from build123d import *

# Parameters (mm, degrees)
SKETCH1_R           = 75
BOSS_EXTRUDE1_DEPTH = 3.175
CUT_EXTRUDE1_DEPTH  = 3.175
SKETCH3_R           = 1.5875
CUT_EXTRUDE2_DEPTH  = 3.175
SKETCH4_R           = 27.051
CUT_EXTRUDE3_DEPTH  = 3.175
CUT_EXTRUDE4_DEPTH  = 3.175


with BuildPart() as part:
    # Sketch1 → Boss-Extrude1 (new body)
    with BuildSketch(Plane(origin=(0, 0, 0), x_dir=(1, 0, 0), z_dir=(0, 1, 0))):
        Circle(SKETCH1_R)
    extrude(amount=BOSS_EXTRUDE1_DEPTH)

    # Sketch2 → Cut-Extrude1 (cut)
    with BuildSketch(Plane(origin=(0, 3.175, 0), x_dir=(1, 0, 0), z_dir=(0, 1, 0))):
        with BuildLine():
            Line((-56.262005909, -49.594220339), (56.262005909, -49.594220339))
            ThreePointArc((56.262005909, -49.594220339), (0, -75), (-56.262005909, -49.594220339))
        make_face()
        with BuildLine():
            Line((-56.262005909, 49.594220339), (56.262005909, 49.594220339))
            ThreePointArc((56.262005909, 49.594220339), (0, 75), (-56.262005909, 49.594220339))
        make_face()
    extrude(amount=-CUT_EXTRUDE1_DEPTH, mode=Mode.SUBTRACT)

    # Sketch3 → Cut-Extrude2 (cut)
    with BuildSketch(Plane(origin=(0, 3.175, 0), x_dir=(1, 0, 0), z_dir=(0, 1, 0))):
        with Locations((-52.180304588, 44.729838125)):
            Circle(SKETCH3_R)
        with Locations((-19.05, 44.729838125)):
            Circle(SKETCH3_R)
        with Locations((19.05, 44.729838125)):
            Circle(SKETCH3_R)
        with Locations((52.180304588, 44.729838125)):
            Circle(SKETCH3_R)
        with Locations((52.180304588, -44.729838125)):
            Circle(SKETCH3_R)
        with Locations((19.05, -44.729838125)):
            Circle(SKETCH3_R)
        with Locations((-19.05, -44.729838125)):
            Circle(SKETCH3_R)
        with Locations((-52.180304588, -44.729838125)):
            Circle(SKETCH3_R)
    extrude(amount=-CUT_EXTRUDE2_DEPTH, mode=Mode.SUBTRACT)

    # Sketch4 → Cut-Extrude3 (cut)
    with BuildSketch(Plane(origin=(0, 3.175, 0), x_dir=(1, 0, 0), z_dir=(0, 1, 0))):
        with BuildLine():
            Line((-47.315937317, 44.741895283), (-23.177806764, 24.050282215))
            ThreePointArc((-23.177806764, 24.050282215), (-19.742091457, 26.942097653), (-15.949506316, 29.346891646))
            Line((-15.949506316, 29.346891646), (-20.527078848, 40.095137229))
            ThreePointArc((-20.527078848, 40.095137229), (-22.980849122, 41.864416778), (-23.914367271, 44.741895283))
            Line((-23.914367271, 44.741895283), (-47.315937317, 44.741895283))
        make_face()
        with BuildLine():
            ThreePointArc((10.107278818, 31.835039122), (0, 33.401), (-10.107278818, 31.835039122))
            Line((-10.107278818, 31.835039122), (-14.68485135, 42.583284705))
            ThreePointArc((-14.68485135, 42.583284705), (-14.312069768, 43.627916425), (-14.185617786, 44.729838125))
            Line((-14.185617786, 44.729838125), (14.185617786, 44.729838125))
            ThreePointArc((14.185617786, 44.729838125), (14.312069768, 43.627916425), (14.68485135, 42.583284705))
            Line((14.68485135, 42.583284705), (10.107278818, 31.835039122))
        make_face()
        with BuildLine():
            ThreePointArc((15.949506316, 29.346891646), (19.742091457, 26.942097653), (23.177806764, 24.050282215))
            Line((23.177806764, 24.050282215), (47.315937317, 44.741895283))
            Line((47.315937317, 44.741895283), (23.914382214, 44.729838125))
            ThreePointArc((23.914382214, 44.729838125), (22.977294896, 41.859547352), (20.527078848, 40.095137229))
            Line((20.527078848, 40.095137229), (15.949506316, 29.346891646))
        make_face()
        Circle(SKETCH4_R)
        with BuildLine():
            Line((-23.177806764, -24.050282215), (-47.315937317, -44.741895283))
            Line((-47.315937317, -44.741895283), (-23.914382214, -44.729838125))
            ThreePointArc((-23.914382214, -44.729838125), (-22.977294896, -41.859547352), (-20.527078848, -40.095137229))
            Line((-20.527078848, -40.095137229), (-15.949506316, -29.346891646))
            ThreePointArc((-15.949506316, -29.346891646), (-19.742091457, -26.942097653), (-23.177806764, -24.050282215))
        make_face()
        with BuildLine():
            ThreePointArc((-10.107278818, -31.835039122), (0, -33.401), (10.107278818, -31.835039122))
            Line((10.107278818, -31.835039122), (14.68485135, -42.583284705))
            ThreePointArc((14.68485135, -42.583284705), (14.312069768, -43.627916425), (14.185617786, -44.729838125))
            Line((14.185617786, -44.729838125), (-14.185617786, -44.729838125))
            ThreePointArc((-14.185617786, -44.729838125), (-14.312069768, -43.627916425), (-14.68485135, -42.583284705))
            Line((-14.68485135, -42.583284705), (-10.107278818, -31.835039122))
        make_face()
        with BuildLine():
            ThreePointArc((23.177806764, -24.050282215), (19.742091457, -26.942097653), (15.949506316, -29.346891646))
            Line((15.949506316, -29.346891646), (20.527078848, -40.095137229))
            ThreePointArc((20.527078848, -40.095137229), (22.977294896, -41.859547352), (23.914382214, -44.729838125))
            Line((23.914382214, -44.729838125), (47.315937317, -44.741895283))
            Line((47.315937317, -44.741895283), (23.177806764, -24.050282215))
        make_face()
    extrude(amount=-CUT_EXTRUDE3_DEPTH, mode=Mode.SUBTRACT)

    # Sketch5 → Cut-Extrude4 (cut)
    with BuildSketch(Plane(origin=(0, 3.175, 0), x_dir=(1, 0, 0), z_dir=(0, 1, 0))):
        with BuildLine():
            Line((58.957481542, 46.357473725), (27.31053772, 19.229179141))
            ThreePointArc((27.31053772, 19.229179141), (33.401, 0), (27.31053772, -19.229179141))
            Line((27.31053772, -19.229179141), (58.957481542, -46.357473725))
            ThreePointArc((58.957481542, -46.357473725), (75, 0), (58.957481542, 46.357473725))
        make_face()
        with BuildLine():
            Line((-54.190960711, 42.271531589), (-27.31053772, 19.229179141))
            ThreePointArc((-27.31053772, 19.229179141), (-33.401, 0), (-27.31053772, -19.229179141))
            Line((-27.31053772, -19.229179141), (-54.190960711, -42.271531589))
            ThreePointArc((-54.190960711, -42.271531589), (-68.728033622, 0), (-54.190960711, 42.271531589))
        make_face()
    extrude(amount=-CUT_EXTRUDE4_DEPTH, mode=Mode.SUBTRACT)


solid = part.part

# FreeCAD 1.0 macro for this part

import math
import FreeCAD as App
import Part
import Sketcher
Q = App.Units.Quantity

doc = App.newDocument("Part")
body = doc.addObject("PartDesign::Body", "Body")

sketch1 = body.newObject("Sketcher::SketchObject", "Sketch")
sketch1.AttachmentSupport = (doc.getObject("XZ_Plane"), [""])
sketch1.MapMode = "FlatFace"
sketch1.addGeometry(Part.Circle(App.Vector(0, 0, 0), App.Vector(0, 0, 1), 75), False)
sketch1.addConstraint([
    Sketcher.Constraint("Coincident", 0, 3, -1, 1),
    Sketcher.Constraint("Diameter", 0, Q("150 mm")),
])
pad1 = body.newObject("PartDesign::Pad", "Pad")
pad1.Profile = sketch1
pad1.Length = Q("0.125 in")
pad1.Reversed = True

sketch2 = body.newObject("Sketcher::SketchObject", "Sketch001")
sketch2.AttachmentSupport = (doc.getObject("XZ_Plane"), [""])
sketch2.MapMode = "FlatFace"
sketch2.AttachmentOffset = App.Placement(App.Vector(0, 0, -0.125 * 25.4), App.Rotation())
sketch2.addGeometry([
    Part.LineSegment(App.Vector(56, 50, 0), App.Vector(-56, 50, 0)),
    Part.ArcOfCircle(Part.Circle(App.Vector(0, 0, 0), App.Vector(0, 0, 1), 75), math.radians(41), math.radians(139)),
    Part.LineSegment(App.Vector(-56, -50, 0), App.Vector(56, -50, 0)),
    Part.ArcOfCircle(Part.Circle(App.Vector(0, 0, 0), App.Vector(0, 0, 1), 75), math.radians(-139), math.radians(-41)),
], False)
sketch2.addConstraint([
    Sketcher.Constraint("Coincident", 0, 1, 1, 1),
    Sketcher.Constraint("Coincident", 1, 2, 0, 2),
    Sketcher.Constraint("Coincident", 2, 1, 3, 1),
    Sketcher.Constraint("Coincident", 3, 2, 2, 2),
    Sketcher.Constraint("Horizontal", 0),
    Sketcher.Constraint("Horizontal", 2),
    Sketcher.Constraint("Coincident", 1, 3, -1, 1),
    Sketcher.Constraint("Coincident", 3, 3, -1, 1),
    Sketcher.Constraint("Equal", 1, 3),
    Sketcher.Constraint("Vertical", 1, 2, 2, 1),
    Sketcher.Constraint("Radius", 1, Q("75 mm")),
    Sketcher.Constraint("DistanceX", 0, 2, 0, 1, Q("112.524012 mm")),
])
pocket1 = body.newObject("PartDesign::Pocket", "Pocket")
pocket1.Profile = sketch2
pocket1.Length = Q("0.125 in")
pocket1.Reversed = True

sketch3 = body.newObject("Sketcher::SketchObject", "Sketch002")
sketch3.AttachmentSupport = (doc.getObject("XZ_Plane"), [""])
sketch3.MapMode = "FlatFace"
sketch3.AttachmentOffset = App.Placement(App.Vector(0, 0, -0.125 * 25.4), App.Rotation())
sketch3.addGeometry([
    Part.Circle(App.Vector(-52.2, -44.7, 0), App.Vector(0, 0, 1), 1.6),
    Part.Circle(App.Vector(-19.1, -44.7, 0), App.Vector(0, 0, 1), 1.6),
    Part.Circle(App.Vector(19.1, -44.7, 0), App.Vector(0, 0, 1), 1.6),
    Part.Circle(App.Vector(52.2, -44.7, 0), App.Vector(0, 0, 1), 1.6),
    Part.Circle(App.Vector(52.2, 44.7, 0), App.Vector(0, 0, 1), 1.6),
    Part.Circle(App.Vector(19.1, 44.7, 0), App.Vector(0, 0, 1), 1.6),
    Part.Circle(App.Vector(-19.1, 44.7, 0), App.Vector(0, 0, 1), 1.6),
    Part.Circle(App.Vector(-52.2, 44.7, 0), App.Vector(0, 0, 1), 1.6),
], False)
sketch3.addConstraint([
    Sketcher.Constraint("Equal", 0, 1),
    Sketcher.Constraint("Equal", 1, 2),
    Sketcher.Constraint("Equal", 2, 3),
    Sketcher.Constraint("Equal", 3, 4),
    Sketcher.Constraint("Equal", 4, 5),
    Sketcher.Constraint("Equal", 5, 6),
    Sketcher.Constraint("Equal", 6, 7),
    Sketcher.Constraint("Symmetric", 0, 3, 4, 3, -1, 1),
    Sketcher.Constraint("Symmetric", 1, 3, 5, 3, -1, 1),
    Sketcher.Constraint("Symmetric", 2, 3, 6, 3, -1, 1),
    Sketcher.Constraint("Symmetric", 3, 3, 7, 3, -1, 1),
    Sketcher.Constraint("Symmetric", 1, 3, 2, 3, -2),
    Sketcher.Constraint("Symmetric", 0, 3, 3, 3, -2),
    Sketcher.Constraint("Horizontal", 0, 3, 1, 3),
    Sketcher.Constraint("Diameter", 0, Q("0.125 in")),
    Sketcher.Constraint("DistanceX", 1, 3, 2, 3, Q("1.5 in")),
    Sketcher.Constraint("DistanceY", 0, 3, -1, 1, Q("44.729838 mm")),
    Sketcher.Constraint("DistanceX", 0, 3, 3, 3, Q("104.360609 mm")),
])
pocket2 = body.newObject("PartDesign::Pocket", "Pocket001")
pocket2.Profile = sketch3
pocket2.Length = Q("0.125 in")
pocket2.Reversed = True

sketch4 = body.newObject("Sketcher::SketchObject", "Sketch003")
sketch4.AttachmentSupport = (doc.getObject("XZ_Plane"), [""])
sketch4.MapMode = "FlatFace"
sketch4.AttachmentOffset = App.Placement(App.Vector(0, 0, -0.125 * 25.4), App.Rotation())
sketch4.addGeometry([
    Part.LineSegment(App.Vector(-47.3, -44.7, 0), App.Vector(-23.2, -24.1, 0)),
    Part.ArcOfCircle(Part.Circle(App.Vector(0, 0, 0), App.Vector(0, 0, 1), 33.4), math.radians(-133.94), math.radians(-118.52)),
    Part.LineSegment(App.Vector(-15.9, -29.3, 0), App.Vector(-20.5, -40.1, 0)),
    Part.ArcOfCircle(Part.Circle(App.Vector(-19, -44.7, 0), App.Vector(0, 0, 1), 4.9), math.radians(108), math.radians(180)),
    Part.LineSegment(App.Vector(-23.9, -44.7, 0), App.Vector(-47.3, -44.7, 0)),
    Part.ArcOfCircle(Part.Circle(App.Vector(0, 0, 0), App.Vector(0, 0, 1), 33.4), math.radians(-108), math.radians(-72)),
    Part.LineSegment(App.Vector(10.1, -31.8, 0), App.Vector(14.7, -42.6, 0)),
    Part.ArcOfCircle(Part.Circle(App.Vector(19.1, -44.7, 0), App.Vector(0, 0, 1), 4.9), math.radians(154), math.radians(180)),
    Part.LineSegment(App.Vector(14.2, -44.7, 0), App.Vector(-14.2, -44.7, 0)),
    Part.ArcOfCircle(Part.Circle(App.Vector(-19.1, -44.7, 0), App.Vector(0, 0, 1), 4.9), math.radians(0), math.radians(26)),
    Part.LineSegment(App.Vector(-14.7, -42.6, 0), App.Vector(-10.1, -31.8, 0)),
    Part.ArcOfCircle(Part.Circle(App.Vector(0, 0, 0), App.Vector(0, 0, 1), 33.4), math.radians(-61.48), math.radians(-46.06)),
    Part.LineSegment(App.Vector(23.2, -24.1, 0), App.Vector(47.3, -44.7, 0)),
    Part.LineSegment(App.Vector(47.3, -44.7, 0), App.Vector(23.9, -44.7, 0)),
    Part.ArcOfCircle(Part.Circle(App.Vector(19.1, -44.7, 0), App.Vector(0, 0, 1), 4.9), math.radians(0), math.radians(72)),
    Part.LineSegment(App.Vector(20.5, -40.1, 0), App.Vector(15.9, -29.3, 0)),
    Part.Circle(App.Vector(0, 0, 0), App.Vector(0, 0, 1), 27.1),
    Part.LineSegment(App.Vector(-23.2, 24.1, 0), App.Vector(-47.3, 44.7, 0)),
    Part.LineSegment(App.Vector(-47.3, 44.7, 0), App.Vector(-23.9, 44.7, 0)),
    Part.ArcOfCircle(Part.Circle(App.Vector(-19.1, 44.7, 0), App.Vector(0, 0, 1), 4.9), math.radians(180), math.radians(252)),
    Part.LineSegment(App.Vector(-20.5, 40.1, 0), App.Vector(-15.9, 29.3, 0)),
    Part.ArcOfCircle(Part.Circle(App.Vector(0, 0, 0), App.Vector(0, 0, 1), 33.4), math.radians(118.52), math.radians(133.94)),
    Part.ArcOfCircle(Part.Circle(App.Vector(0, 0, 0), App.Vector(0, 0, 1), 33.4), math.radians(72), math.radians(108)),
    Part.LineSegment(App.Vector(-10.1, 31.8, 0), App.Vector(-14.7, 42.6, 0)),
    Part.ArcOfCircle(Part.Circle(App.Vector(-19.1, 44.7, 0), App.Vector(0, 0, 1), 4.9), math.radians(-26), math.radians(0)),
    Part.LineSegment(App.Vector(-14.2, 44.7, 0), App.Vector(14.2, 44.7, 0)),
    Part.ArcOfCircle(Part.Circle(App.Vector(19.1, 44.7, 0), App.Vector(0, 0, 1), 4.9), math.radians(-180), math.radians(-154)),
    Part.LineSegment(App.Vector(14.7, 42.6, 0), App.Vector(10.1, 31.8, 0)),
    Part.ArcOfCircle(Part.Circle(App.Vector(0, 0, 0), App.Vector(0, 0, 1), 33.4), math.radians(46.06), math.radians(61.48)),
    Part.LineSegment(App.Vector(15.9, 29.3, 0), App.Vector(20.5, 40.1, 0)),
    Part.ArcOfCircle(Part.Circle(App.Vector(19.1, 44.7, 0), App.Vector(0, 0, 1), 4.9), math.radians(-72), math.radians(0)),
    Part.LineSegment(App.Vector(23.9, 44.7, 0), App.Vector(47.3, 44.7, 0)),
    Part.LineSegment(App.Vector(47.3, 44.7, 0), App.Vector(23.2, 24.1, 0)),
], False)
sketch4.addConstraint([
    Sketcher.Constraint("Coincident", 0, 2, 1, 1),
    Sketcher.Constraint("Coincident", 1, 2, 2, 1),
    Sketcher.Constraint("Coincident", 2, 2, 3, 1),
    Sketcher.Constraint("Coincident", 3, 2, 4, 1),
    Sketcher.Constraint("Coincident", 4, 2, 0, 1),
    Sketcher.Constraint("Coincident", 5, 2, 6, 1),
    Sketcher.Constraint("Coincident", 6, 2, 7, 1),
    Sketcher.Constraint("Coincident", 7, 2, 8, 1),
    Sketcher.Constraint("Coincident", 8, 2, 9, 1),
    Sketcher.Constraint("Coincident", 9, 2, 10, 1),
    Sketcher.Constraint("Coincident", 10, 2, 5, 1),
    Sketcher.Constraint("Coincident", 11, 2, 12, 1),
    Sketcher.Constraint("Coincident", 12, 2, 13, 1),
    Sketcher.Constraint("Coincident", 13, 2, 14, 1),
    Sketcher.Constraint("Coincident", 14, 2, 15, 1),
    Sketcher.Constraint("Coincident", 15, 2, 11, 1),
    Sketcher.Constraint("Coincident", 17, 2, 18, 1),
    Sketcher.Constraint("Coincident", 18, 2, 19, 1),
    Sketcher.Constraint("Coincident", 19, 2, 20, 1),
    Sketcher.Constraint("Coincident", 20, 2, 21, 1),
    Sketcher.Constraint("Coincident", 21, 2, 17, 1),
    Sketcher.Constraint("Coincident", 22, 2, 23, 1),
    Sketcher.Constraint("Coincident", 23, 2, 24, 1),
    Sketcher.Constraint("Coincident", 24, 2, 25, 1),
    Sketcher.Constraint("Coincident", 25, 2, 26, 1),
    Sketcher.Constraint("Coincident", 26, 2, 27, 1),
    Sketcher.Constraint("Coincident", 27, 2, 22, 1),
    Sketcher.Constraint("Coincident", 28, 2, 29, 1),
    Sketcher.Constraint("Coincident", 29, 2, 30, 1),
    Sketcher.Constraint("Coincident", 30, 2, 31, 1),
    Sketcher.Constraint("Coincident", 31, 2, 32, 1),
    Sketcher.Constraint("Coincident", 32, 2, 28, 1),
    Sketcher.Constraint("Horizontal", 4),
    Sketcher.Constraint("Horizontal", 8),
    Sketcher.Constraint("Horizontal", 25),
    Sketcher.Constraint("Coincident", 1, 3, -1, 1),
    Sketcher.Constraint("Coincident", 5, 3, -1, 1),
    Sketcher.Constraint("Coincident", 11, 3, -1, 1),
    Sketcher.Constraint("Coincident", 16, 3, -1, 1),
    Sketcher.Constraint("Coincident", 21, 3, -1, 1),
    Sketcher.Constraint("Coincident", 22, 3, -1, 1),
    Sketcher.Constraint("Coincident", 28, 3, -1, 1),
    Sketcher.Constraint("Coincident", 9, 3, 3, 3),
    Sketcher.Constraint("Coincident", 14, 3, 7, 3),
    Sketcher.Constraint("Coincident", 24, 3, 19, 3),
    Sketcher.Constraint("Coincident", 30, 3, 26, 3),
    Sketcher.Constraint("Equal", 1, 5),
    Sketcher.Constraint("Equal", 3, 7),
    Sketcher.Constraint("Equal", 7, 9),
    Sketcher.Constraint("Equal", 5, 11),
    Sketcher.Constraint("Equal", 9, 14),
    Sketcher.Constraint("Equal", 14, 19),
    Sketcher.Constraint("Equal", 11, 21),
    Sketcher.Constraint("Equal", 21, 22),
    Sketcher.Constraint("Equal", 19, 24),
    Sketcher.Constraint("Equal", 24, 26),
    Sketcher.Constraint("Equal", 22, 28),
    Sketcher.Constraint("Equal", 26, 30),
    Sketcher.Constraint("Symmetric", 7, 3, 19, 3, -1, 1),
    Sketcher.Constraint("Symmetric", 3, 3, 26, 3, -1, 1),
    Sketcher.Constraint("Symmetric", 12, 2, 17, 2, -1, 1),
    Sketcher.Constraint("Symmetric", 4, 2, 31, 2, -1, 1),
    Sketcher.Constraint("Symmetric", 3, 3, 7, 3, -2),
    Sketcher.Constraint("Symmetric", 4, 2, 12, 2, -2),
    Sketcher.Constraint("Parallel", 2, 10),
    Sketcher.Constraint("Parallel", 6, 15),
    Sketcher.Constraint("Parallel", 12, 17),
    Sketcher.Constraint("Parallel", 13, 18),
    Sketcher.Constraint("Parallel", 15, 20),
    Sketcher.Constraint("Parallel", 20, 23),
    Sketcher.Constraint("Parallel", 10, 27),
    Sketcher.Constraint("Parallel", 27, 29),
    Sketcher.Constraint("Parallel", 0, 32),
    Sketcher.Constraint("Horizontal", 14, 3, 7, 2),
    Sketcher.Constraint("Horizontal", 6, 2, 9, 2),
    Sketcher.Constraint("Horizontal", 5, 2, 10, 2),
    Sketcher.Constraint("Horizontal", 0, 2, 11, 2),
    Sketcher.Constraint("Horizontal", 8, 2, 13, 2),
    Sketcher.Constraint("Horizontal", 2, 2, 14, 2),
    Sketcher.Constraint("Horizontal", 18, 2, 24, 2),
    Sketcher.Constraint("Horizontal", 23, 2, 26, 2),
    Sketcher.Constraint("Horizontal", 20, 2, 28, 2),
    Sketcher.Constraint("Horizontal", 25, 2, 30, 2),
    Sketcher.Constraint("Vertical", 2, 2, 19, 2),
    Sketcher.Constraint("Vertical", 10, 2, 22, 2),
    Sketcher.Constraint("Equal", 2, 6),
    Sketcher.Constraint("Diameter", 16, Q("2.13 in")),
    Sketcher.Constraint("Radius", 1, Q("1.315 in")),
    Sketcher.Constraint("DistanceX", 3, 3, 7, 3, Q("1.5 in")),
    Sketcher.Constraint("Radius", 3, Q("4.864382 mm")),
    Sketcher.Constraint("DistanceX", 4, 2, 4, 1, Q("23.40157 mm")),
    Sketcher.Constraint("DistanceX", 0, 2, 1, 2, Q("7.2283 mm")),
    Sketcher.Constraint("DistanceY", 9, 3, 2, 2, Q("4.634701 mm")),
    Sketcher.Constraint("DistanceY", 14, 3, 5, 2, Q("12.894799 mm")),
    Sketcher.Constraint("DistanceX", 2, 2, 10, 2, Q("10.4198 mm")),
    Sketcher.Constraint("Distance", 0, Q("31.792958 mm")),
])
pocket3 = body.newObject("PartDesign::Pocket", "Pocket002")
pocket3.Profile = sketch4
pocket3.Length = Q("0.125 in")
pocket3.Reversed = True

sketch5 = body.newObject("Sketcher::SketchObject", "Sketch004")
sketch5.AttachmentSupport = (doc.getObject("XZ_Plane"), [""])
sketch5.MapMode = "FlatFace"
sketch5.AttachmentOffset = App.Placement(App.Vector(0, 0, -0.125 * 25.4), App.Rotation())
sketch5.addGeometry([
    Part.LineSegment(App.Vector(59, -46, 0), App.Vector(27, -19, 0)),
    Part.ArcOfCircle(Part.Circle(App.Vector(0, 0, 0), App.Vector(0, 0, 1), 33), math.radians(-35), math.radians(35)),
    Part.LineSegment(App.Vector(27, 19, 0), App.Vector(59, 46, 0)),
    Part.ArcOfCircle(Part.Circle(App.Vector(0, 0, 0), App.Vector(0, 0, 1), 75), math.radians(-38), math.radians(38)),
    Part.LineSegment(App.Vector(-27, -19, 0), App.Vector(-54, -42, 0)),
    Part.ArcOfCircle(Part.Circle(App.Vector(0, 0, 0), App.Vector(0, 0, 1), 69), math.radians(142), math.radians(218)),
    Part.LineSegment(App.Vector(-54, 42, 0), App.Vector(-27, 19, 0)),
    Part.ArcOfCircle(Part.Circle(App.Vector(0, 0, 0), App.Vector(0, 0, 1), 33), math.radians(145), math.radians(215)),
], False)
sketch5.addConstraint([
    Sketcher.Constraint("Coincident", 0, 2, 1, 1),
    Sketcher.Constraint("Coincident", 1, 2, 2, 1),
    Sketcher.Constraint("Coincident", 2, 2, 3, 2),
    Sketcher.Constraint("Coincident", 3, 1, 0, 1),
    Sketcher.Constraint("Coincident", 4, 2, 5, 2),
    Sketcher.Constraint("Coincident", 5, 1, 6, 1),
    Sketcher.Constraint("Coincident", 6, 2, 7, 1),
    Sketcher.Constraint("Coincident", 7, 2, 4, 1),
    Sketcher.Constraint("Coincident", 1, 3, -1, 1),
    Sketcher.Constraint("Coincident", 3, 3, -1, 1),
    Sketcher.Constraint("Coincident", 5, 3, -1, 1),
    Sketcher.Constraint("Coincident", 7, 3, -1, 1),
    Sketcher.Constraint("Equal", 1, 7),
    Sketcher.Constraint("Parallel", 2, 4),
    Sketcher.Constraint("Parallel", 0, 6),
    Sketcher.Constraint("Horizontal", 1, 2, 6, 2),
    Sketcher.Constraint("Horizontal", 0, 2, 7, 2),
    Sketcher.Constraint("Vertical", 0, 2, 1, 2),
    Sketcher.Constraint("Vertical", 2, 2, 3, 1),
    Sketcher.Constraint("Radius", 1, Q("1.315 in")),
    Sketcher.Constraint("Radius", 3, Q("75 mm")),
    Sketcher.Constraint("Radius", 5, Q("68.728034 mm")),
    Sketcher.Constraint("DistanceX", 4, 2, 0, 2, Q("81.501498 mm")),
    Sketcher.Constraint("Distance", 0, Q("41.683011 mm")),
])
pocket4 = body.newObject("PartDesign::Pocket", "Pocket003")
pocket4.Profile = sketch5
pocket4.Length = Q("0.125 in")
pocket4.Reversed = True

doc.recompute()
